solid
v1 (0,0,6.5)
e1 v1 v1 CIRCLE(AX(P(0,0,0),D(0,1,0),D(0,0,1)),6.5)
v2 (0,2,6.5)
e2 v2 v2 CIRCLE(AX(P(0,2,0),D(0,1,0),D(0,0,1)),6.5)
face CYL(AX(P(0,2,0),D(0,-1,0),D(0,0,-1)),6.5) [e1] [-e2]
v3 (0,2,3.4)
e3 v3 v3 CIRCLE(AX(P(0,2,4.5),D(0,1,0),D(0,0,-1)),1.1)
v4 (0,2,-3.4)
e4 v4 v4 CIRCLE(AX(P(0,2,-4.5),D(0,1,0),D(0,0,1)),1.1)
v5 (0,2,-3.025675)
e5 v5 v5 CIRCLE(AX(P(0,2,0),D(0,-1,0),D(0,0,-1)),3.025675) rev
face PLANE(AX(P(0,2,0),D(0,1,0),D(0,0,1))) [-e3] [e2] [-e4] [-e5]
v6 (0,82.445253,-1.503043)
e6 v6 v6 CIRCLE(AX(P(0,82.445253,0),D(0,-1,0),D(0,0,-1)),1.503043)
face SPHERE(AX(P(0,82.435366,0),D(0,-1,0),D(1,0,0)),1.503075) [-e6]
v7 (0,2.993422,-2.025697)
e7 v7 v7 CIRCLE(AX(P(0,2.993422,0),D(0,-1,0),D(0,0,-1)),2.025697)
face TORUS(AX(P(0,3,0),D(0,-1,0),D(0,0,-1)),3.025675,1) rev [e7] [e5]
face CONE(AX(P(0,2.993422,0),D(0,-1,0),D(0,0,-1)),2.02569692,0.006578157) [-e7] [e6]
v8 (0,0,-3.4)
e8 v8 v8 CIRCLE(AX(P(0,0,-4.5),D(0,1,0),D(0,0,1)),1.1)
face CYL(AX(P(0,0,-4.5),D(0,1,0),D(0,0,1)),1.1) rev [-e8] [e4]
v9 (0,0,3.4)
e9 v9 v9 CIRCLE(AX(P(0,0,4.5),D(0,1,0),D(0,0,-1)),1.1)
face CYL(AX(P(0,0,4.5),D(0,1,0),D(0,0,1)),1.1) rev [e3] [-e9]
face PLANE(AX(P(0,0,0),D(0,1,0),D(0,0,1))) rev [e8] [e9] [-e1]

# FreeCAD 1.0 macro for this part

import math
import FreeCAD as App
import Part
import Sketcher

doc = App.newDocument("Part")
params = doc.addObject("Spreadsheet::Sheet", "Params")
for row, (alias, value) in enumerate([
    ("sketch1_diameter", "13 mm"),
    ("pad1_length", "2 mm"),
    ("sketch2_diameter", "2.2 mm"),
    ("sketch3_radius", "1 mm"),
    ("revolution_angle", "360 deg"),
], start=1):
    params.set(f"A{row}", alias)
    params.set(f"B{row}", "=" + value)
    params.setAlias(f"B{row}", alias)

body = doc.addObject("PartDesign::Body", "Body")

# Sketch on XZ plane
sketch1 = body.newObject("Sketcher::SketchObject", "Sketch")
sketch1.AttachmentSupport = (doc.getObject("XZ_Plane"), [""])
sketch1.MapMode = "FlatFace"
sketch1.addGeometry(Part.Circle(App.Vector(0, 0, 0), App.Vector(0, 0, 1), 6), False)
sketch1.addConstraint([
    Sketcher.Constraint("Coincident", 0, 3, -1, 1),
    Sketcher.Constraint("Diameter", 0, 13.0),
])
sketch1.setExpression("Constraints[1]", "Params.sketch1_diameter")
pad1 = body.newObject("PartDesign::Pad", "Pad")
pad1.Profile = sketch1
pad1.setExpression("Length", "Params.pad1_length")
pad1.Reversed = True

# Sketch on XZ plane
sketch2 = body.newObject("Sketcher::SketchObject", "Sketch001")
sketch2.AttachmentSupport = (doc.getObject("XZ_Plane"), [""])
sketch2.MapMode = "FlatFace"
sketch2.AttachmentOffset = App.Placement(App.Vector(0, 0, -2), App.Rotation())
sketch2.addGeometry([
    Part.Circle(App.Vector(0, -4.5, 0), App.Vector(0, 0, 1), 1.1),
    Part.Circle(App.Vector(0, 4.5, 0), App.Vector(0, 0, 1), 1.1),
], False)
sketch2.addConstraint([
    Sketcher.Constraint("Equal", 0, 1),
    Sketcher.Constraint("Symmetric", 0, 3, 1, 3, -1, 1),
    Sketcher.Constraint("PointOnObject", 0, 3, -2),
    Sketcher.Constraint("Diameter", 0, 2.2),
    Sketcher.Constraint("DistanceY", 0, 3, 1, 3, 9.0),
])
sketch2.setExpression("Constraints[3]", "Params.sketch2_diameter")
pocket1 = body.newObject("PartDesign::Pocket", "Pocket")
pocket1.Profile = sketch2
pocket1.Type = "ThroughAll"
pocket1.Reversed = True

# Sketch on XY plane
sketch3 = body.newObject("Sketcher::SketchObject", "Sketch002")
sketch3.AttachmentSupport = (doc.getObject("XY_Plane"), [""])
sketch3.MapMode = "FlatFace"
sketch3.addGeometry([
    Part.LineSegment(App.Vector(2, 3, 0), App.Vector(1.5, 81.5, 0)),  # 0
    Part.LineSegment(App.Vector(1.5, 81.5, 0), App.Vector(1.5, 82.4, 0)),  # 1
    Part.ArcOfCircle(Part.Circle(App.Vector(0, 82.4, 0), App.Vector(0, 0, 1), 1.5), math.radians(0), math.radians(90)),  # 2
    Part.LineSegment(App.Vector(0, 83.9, 0), App.Vector(0, 2, 0)),  # 3
    Part.LineSegment(App.Vector(0, 2, 0), App.Vector(3, 2, 0)),  # 4
    Part.ArcOfCircle(Part.Circle(App.Vector(3, 3, 0), App.Vector(0, 0, 1), 1), math.radians(-180), math.radians(-90)),  # 5
], False)
sketch3.addConstraint([
    Sketcher.Constraint("Coincident", 0, 2, 1, 1),
    Sketcher.Constraint("Tangent", 1, 2, 2, 1),
    Sketcher.Constraint("Coincident", 2, 2, 3, 1),
    Sketcher.Constraint("Coincident", 3, 2, 4, 1),
    Sketcher.Constraint("Tangent", 4, 2, 5, 2),
    Sketcher.Constraint("Tangent", 5, 1, 0, 1),
    Sketcher.Constraint("Vertical", 3),
    Sketcher.Constraint("Horizontal", 4),
    Sketcher.Constraint("PointOnObject", 2, 3, -2),
    Sketcher.Constraint("PointOnObject", 2, 2, -2),
    Sketcher.Constraint("Parallel", 0, 1),
    Sketcher.Constraint("Radius", 5, 1.0),
    Sketcher.Constraint("DistanceY", -1, 1, 5, 3, 3.0),
    Sketcher.Constraint("Radius", 2, 1.503075),
    Sketcher.Constraint("Distance", 1, 0.9359),
    Sketcher.Constraint("DistanceY", 3, 2, 3, 1, 81.938441),
    Sketcher.Constraint("DistanceX", -1, 1, 0, 2, 1.509199),
])
sketch3.setExpression("Constraints[11]", "Params.sketch3_radius")
revolution = body.newObject("PartDesign::Revolution", "Revolution")
revolution.Profile = sketch3
revolution.ReferenceAxis = (sketch3, ["V_Axis"])
revolution.setExpression("Angle", "Params.revolution_angle")

doc.recompute()
